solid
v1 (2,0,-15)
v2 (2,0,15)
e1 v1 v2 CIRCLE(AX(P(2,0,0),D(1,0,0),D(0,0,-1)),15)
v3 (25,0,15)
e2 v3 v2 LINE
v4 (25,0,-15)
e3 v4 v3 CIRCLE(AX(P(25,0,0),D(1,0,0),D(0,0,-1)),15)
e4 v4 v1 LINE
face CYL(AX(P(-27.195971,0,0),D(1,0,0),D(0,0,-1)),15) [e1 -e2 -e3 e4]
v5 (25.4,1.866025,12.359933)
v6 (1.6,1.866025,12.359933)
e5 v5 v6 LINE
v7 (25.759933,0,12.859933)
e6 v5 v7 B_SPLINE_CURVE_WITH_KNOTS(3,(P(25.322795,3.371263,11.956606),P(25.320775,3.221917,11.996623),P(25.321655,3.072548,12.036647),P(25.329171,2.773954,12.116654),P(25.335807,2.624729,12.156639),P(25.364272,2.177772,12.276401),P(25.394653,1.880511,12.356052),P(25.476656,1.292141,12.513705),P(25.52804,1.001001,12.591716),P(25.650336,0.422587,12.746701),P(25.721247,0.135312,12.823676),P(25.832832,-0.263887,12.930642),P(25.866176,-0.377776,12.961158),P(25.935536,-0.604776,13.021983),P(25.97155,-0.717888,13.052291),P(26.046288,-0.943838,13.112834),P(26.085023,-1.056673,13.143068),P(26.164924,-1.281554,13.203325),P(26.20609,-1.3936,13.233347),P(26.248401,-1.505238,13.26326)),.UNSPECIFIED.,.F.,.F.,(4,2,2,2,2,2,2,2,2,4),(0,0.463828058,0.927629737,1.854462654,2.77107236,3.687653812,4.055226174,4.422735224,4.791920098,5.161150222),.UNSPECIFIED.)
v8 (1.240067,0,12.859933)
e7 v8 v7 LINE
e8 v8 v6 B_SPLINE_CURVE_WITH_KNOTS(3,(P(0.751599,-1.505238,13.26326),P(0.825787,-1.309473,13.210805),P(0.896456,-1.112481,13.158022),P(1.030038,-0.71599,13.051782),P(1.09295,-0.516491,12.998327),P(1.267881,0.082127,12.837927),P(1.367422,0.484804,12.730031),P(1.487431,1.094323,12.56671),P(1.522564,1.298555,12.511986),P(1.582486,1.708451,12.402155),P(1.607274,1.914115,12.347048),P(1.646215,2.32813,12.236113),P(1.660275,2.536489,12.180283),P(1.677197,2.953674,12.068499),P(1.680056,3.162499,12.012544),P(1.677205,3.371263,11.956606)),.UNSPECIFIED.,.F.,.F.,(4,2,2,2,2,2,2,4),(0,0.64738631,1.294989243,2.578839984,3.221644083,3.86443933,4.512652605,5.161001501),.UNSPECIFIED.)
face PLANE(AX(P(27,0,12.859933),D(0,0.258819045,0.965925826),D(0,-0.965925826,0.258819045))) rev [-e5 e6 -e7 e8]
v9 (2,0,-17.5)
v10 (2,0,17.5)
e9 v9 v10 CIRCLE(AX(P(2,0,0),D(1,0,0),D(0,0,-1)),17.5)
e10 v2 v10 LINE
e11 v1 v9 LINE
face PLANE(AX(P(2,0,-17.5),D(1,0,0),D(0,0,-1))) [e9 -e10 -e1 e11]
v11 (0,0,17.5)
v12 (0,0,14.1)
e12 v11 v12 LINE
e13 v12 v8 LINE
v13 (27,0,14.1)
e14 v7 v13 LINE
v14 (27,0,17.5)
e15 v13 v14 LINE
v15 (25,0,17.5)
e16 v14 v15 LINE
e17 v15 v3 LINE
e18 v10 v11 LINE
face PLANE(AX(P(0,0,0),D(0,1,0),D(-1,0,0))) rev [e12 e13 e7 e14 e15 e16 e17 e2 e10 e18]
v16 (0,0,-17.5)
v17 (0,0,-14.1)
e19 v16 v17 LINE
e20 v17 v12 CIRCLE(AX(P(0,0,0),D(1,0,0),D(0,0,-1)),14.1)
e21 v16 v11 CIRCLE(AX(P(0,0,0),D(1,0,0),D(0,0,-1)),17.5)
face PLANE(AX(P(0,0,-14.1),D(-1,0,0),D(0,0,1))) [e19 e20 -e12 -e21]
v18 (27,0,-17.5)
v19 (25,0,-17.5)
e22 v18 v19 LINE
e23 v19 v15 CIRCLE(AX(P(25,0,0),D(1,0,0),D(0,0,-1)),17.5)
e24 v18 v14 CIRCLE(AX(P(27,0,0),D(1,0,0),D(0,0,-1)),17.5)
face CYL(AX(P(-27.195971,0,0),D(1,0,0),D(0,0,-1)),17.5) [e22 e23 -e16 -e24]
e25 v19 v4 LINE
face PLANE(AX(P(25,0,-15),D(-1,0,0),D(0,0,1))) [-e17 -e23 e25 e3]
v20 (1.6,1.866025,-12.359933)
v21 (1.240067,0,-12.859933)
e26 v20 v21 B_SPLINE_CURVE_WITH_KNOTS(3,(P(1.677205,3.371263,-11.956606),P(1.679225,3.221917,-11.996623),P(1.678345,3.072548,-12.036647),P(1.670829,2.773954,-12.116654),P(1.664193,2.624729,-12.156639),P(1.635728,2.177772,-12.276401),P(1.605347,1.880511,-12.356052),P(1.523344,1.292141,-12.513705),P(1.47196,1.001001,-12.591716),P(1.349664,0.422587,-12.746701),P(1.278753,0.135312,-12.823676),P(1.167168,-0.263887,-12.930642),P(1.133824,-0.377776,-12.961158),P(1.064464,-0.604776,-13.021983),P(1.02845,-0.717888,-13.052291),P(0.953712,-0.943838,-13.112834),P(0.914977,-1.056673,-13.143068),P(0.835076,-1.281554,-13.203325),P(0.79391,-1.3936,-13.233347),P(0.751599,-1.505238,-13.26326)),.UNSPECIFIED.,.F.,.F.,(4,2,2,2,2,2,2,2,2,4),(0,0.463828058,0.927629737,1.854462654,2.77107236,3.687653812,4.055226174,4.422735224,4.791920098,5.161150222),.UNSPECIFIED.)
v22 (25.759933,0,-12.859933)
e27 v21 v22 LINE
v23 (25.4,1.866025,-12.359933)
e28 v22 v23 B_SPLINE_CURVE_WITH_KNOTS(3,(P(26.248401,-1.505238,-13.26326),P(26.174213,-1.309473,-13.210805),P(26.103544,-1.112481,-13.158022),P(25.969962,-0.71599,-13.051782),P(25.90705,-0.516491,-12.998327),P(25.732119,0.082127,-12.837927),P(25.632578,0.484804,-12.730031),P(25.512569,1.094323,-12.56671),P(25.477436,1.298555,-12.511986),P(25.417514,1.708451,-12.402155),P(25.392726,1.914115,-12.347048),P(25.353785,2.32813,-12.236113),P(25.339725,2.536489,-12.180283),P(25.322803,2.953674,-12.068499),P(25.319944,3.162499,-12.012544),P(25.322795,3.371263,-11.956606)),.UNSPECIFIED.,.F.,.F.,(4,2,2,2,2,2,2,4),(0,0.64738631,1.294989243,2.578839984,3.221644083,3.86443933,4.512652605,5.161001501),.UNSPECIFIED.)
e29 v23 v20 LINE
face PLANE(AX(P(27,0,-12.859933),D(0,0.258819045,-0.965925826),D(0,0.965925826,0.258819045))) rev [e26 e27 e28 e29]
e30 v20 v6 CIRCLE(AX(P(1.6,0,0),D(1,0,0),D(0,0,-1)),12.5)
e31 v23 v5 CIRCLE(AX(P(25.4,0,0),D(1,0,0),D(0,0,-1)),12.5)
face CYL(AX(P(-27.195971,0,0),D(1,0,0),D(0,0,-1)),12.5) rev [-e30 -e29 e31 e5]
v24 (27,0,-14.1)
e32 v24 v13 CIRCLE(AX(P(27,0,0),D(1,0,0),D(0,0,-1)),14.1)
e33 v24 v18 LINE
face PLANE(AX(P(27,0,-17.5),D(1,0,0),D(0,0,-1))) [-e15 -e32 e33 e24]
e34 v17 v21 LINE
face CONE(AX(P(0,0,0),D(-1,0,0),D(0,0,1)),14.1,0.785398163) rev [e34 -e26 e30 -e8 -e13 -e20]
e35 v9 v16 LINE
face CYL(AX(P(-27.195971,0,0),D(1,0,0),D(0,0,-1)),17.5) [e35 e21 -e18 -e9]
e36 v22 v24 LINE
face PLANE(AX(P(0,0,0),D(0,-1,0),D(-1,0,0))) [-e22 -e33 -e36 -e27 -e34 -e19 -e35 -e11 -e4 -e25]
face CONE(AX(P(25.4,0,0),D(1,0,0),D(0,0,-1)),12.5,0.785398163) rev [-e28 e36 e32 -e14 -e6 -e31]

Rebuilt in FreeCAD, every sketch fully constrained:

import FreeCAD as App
import Part
import Sketcher
Q = App.Units.Quantity

doc = App.newDocument("Part")
body = doc.addObject("PartDesign::Body", "Body")

sketch1 = body.newObject("Sketcher::SketchObject", "Sketch")
sketch1.AttachmentSupport = (doc.getObject("XY_Plane"), [""])
sketch1.MapMode = "FlatFace"
sketch1.addGeometry([
    Part.LineSegment(App.Vector(0, 17.5, 0), App.Vector(0, 14.1, 0)),
    Part.LineSegment(App.Vector(0, 14.1, 0), App.Vector(1.6, 12.5, 0)),
    Part.LineSegment(App.Vector(1.6, 12.5, 0), App.Vector(25.4, 12.5, 0)),
    Part.LineSegment(App.Vector(25.4, 12.5, 0), App.Vector(27, 14.1, 0)),
    Part.LineSegment(App.Vector(27, 14.1, 0), App.Vector(27, 17.5, 0)),
    Part.LineSegment(App.Vector(27, 17.5, 0), App.Vector(25, 17.5, 0)),
    Part.LineSegment(App.Vector(25, 17.5, 0), App.Vector(25, 15, 0)),
    Part.LineSegment(App.Vector(25, 15, 0), App.Vector(2, 15, 0)),
    Part.LineSegment(App.Vector(2, 15, 0), App.Vector(2, 17.5, 0)),
    Part.LineSegment(App.Vector(2, 17.5, 0), App.Vector(0, 17.5, 0)),
], False)
sketch1.addConstraint([
    Sketcher.Constraint("Coincident", 0, 2, 1, 1),
    Sketcher.Constraint("Coincident", 1, 2, 2, 1),
    Sketcher.Constraint("Coincident", 2, 2, 3, 1),
    Sketcher.Constraint("Coincident", 3, 2, 4, 1),
    Sketcher.Constraint("Coincident", 4, 2, 5, 1),
    Sketcher.Constraint("Coincident", 5, 2, 6, 1),
    Sketcher.Constraint("Coincident", 6, 2, 7, 1),
    Sketcher.Constraint("Coincident", 7, 2, 8, 1),
    Sketcher.Constraint("Coincident", 8, 2, 9, 1),
    Sketcher.Constraint("Coincident", 9, 2, 0, 1),
    Sketcher.Constraint("Vertical", 0),
    Sketcher.Constraint("Horizontal", 2),
    Sketcher.Constraint("Vertical", 4),
    Sketcher.Constraint("Horizontal", 5),
    Sketcher.Constraint("Vertical", 6),
    Sketcher.Constraint("Horizontal", 7),
    Sketcher.Constraint("Vertical", 8),
    Sketcher.Constraint("Horizontal", 9),
    Sketcher.Constraint("PointOnObject", 0, 2, -2),
    Sketcher.Constraint("Perpendicular", 1, 3),
    Sketcher.Constraint("Horizontal", 0, 2, 3, 2),
    Sketcher.Constraint("Horizontal", 5, 2, 8, 2),
    Sketcher.Constraint("Equal", 5, 9),
    Sketcher.Constraint("Equal", 1, 3),
    Sketcher.Constraint("DistanceX", 5, 2, 5, 1, 2.0),
    Sketcher.Constraint("DistanceX", 7, 2, 7, 1, 23.0),
    Sketcher.Constraint("DistanceX", 2, 1, 2, 2, 23.8),
    Sketcher.Constraint("DistanceY", 0, 2, 0, 1, 3.4),
    Sketcher.Constraint("DistanceY", 6, 2, 6, 1, 2.5),
    Sketcher.Constraint("DistanceY", -1, 1, 6, 2, 15.0),
])
revolution = body.newObject("PartDesign::Revolution", "Revolution")
revolution.Profile = sketch1
revolution.ReferenceAxis = (sketch1, ["H_Axis"])
revolution.Angle = 90

sketch2 = body.newObject("Sketcher::SketchObject", "Sketch001")
sketch2.AttachmentSupport = (doc.getObject("XY_Plane"), [""])
sketch2.MapMode = "FlatFace"
sketch2.addGeometry([
    Part.LineSegment(App.Vector(0, 17.5, 0), App.Vector(0, 14.1, 0)),
    Part.LineSegment(App.Vector(0, 14.1, 0), App.Vector(1.6, 12.5, 0)),
    Part.LineSegment(App.Vector(1.6, 12.5, 0), App.Vector(25.4, 12.5, 0)),
    Part.LineSegment(App.Vector(25.4, 12.5, 0), App.Vector(27, 14.1, 0)),
    Part.LineSegment(App.Vector(27, 14.1, 0), App.Vector(27, 17.5, 0)),
    Part.LineSegment(App.Vector(27, 17.5, 0), App.Vector(25, 17.5, 0)),
    Part.LineSegment(App.Vector(25, 17.5, 0), App.Vector(25, 15, 0)),
    Part.LineSegment(App.Vector(25, 15, 0), App.Vector(2, 15, 0)),
    Part.LineSegment(App.Vector(2, 15, 0), App.Vector(2, 17.5, 0)),
    Part.LineSegment(App.Vector(2, 17.5, 0), App.Vector(0, 17.5, 0)),
], False)
sketch2.addConstraint([
    Sketcher.Constraint("Coincident", 0, 2, 1, 1),
    Sketcher.Constraint("Coincident", 1, 2, 2, 1),
    Sketcher.Constraint("Coincident", 2, 2, 3, 1),
    Sketcher.Constraint("Coincident", 3, 2, 4, 1),
    Sketcher.Constraint("Coincident", 4, 2, 5, 1),
    Sketcher.Constraint("Coincident", 5, 2, 6, 1),
    Sketcher.Constraint("Coincident", 6, 2, 7, 1),
    Sketcher.Constraint("Coincident", 7, 2, 8, 1),
    Sketcher.Constraint("Coincident", 8, 2, 9, 1),
    Sketcher.Constraint("Coincident", 9, 2, 0, 1),
    Sketcher.Constraint("Vertical", 0),
    Sketcher.Constraint("Horizontal", 2),
    Sketcher.Constraint("Vertical", 4),
    Sketcher.Constraint("Horizontal", 5),
    Sketcher.Constraint("Vertical", 6),
    Sketcher.Constraint("Horizontal", 7),
    Sketcher.Constraint("Vertical", 8),
    Sketcher.Constraint("Horizontal", 9),
    Sketcher.Constraint("PointOnObject", 0, 2, -2),
    Sketcher.Constraint("Perpendicular", 1, 3),
    Sketcher.Constraint("Horizontal", 0, 2, 3, 2),
    Sketcher.Constraint("Horizontal", 5, 2, 8, 2),
    Sketcher.Constraint("Equal", 5, 9),
    Sketcher.Constraint("Equal", 1, 3),
    Sketcher.Constraint("DistanceX", 5, 2, 5, 1, 2.0),
    Sketcher.Constraint("DistanceX", 7, 2, 7, 1, 23.0),
    Sketcher.Constraint("DistanceX", 2, 1, 2, 2, 23.8),
    Sketcher.Constraint("DistanceY", 0, 2, 0, 1, 3.4),
    Sketcher.Constraint("DistanceY", 6, 2, 6, 1, 2.5),
    Sketcher.Constraint("DistanceY", -1, 1, 6, 2, 15.0),
])
revolution2 = body.newObject("PartDesign::Revolution", "Revolution001")
revolution2.Profile = sketch2
revolution2.ReferenceAxis = (sketch2, ["H_Axis"])
revolution2.Angle = 90
revolution2.Reversed = True

sketch3 = body.newObject("Sketcher::SketchObject", "Sketch002")
sketch3.AttachmentSupport = (doc.getObject("YZ_Plane"), [""])
sketch3.MapMode = "FlatFace"
sketch3.addGeometry([
    Part.LineSegment(App.Vector(0, 12.9, 0), App.Vector(1.9, 12.4, 0)),
    Part.LineSegment(App.Vector(1.9, 12.4, 0), App.Vector(0, 12.4, 0)),
    Part.LineSegment(App.Vector(0, 12.4, 0), App.Vector(0, 12.9, 0)),
    Part.LineSegment(App.Vector(1.9, -12.4, 0), App.Vector(0, -12.9, 0)),
    Part.LineSegment(App.Vector(0, -12.9, 0), App.Vector(0, -12.4, 0)),
    Part.LineSegment(App.Vector(0, -12.4, 0), App.Vector(1.9, -12.4, 0)),
], False)
sketch3.addConstraint([
    Sketcher.Constraint("Coincident", 0, 2, 1, 1),
    Sketcher.Constraint("Coincident", 1, 2, 2, 1),
    Sketcher.Constraint("Coincident", 2, 2, 0, 1),
    Sketcher.Constraint("Coincident", 3, 2, 4, 1),
    Sketcher.Constraint("Coincident", 4, 2, 5, 1),
    Sketcher.Constraint("Coincident", 5, 2, 3, 1),
    Sketcher.Constraint("Horizontal", 1),
    Sketcher.Constraint("Vertical", 2),
    Sketcher.Constraint("Vertical", 4),
    Sketcher.Constraint("Horizontal", 5),
    Sketcher.Constraint("Symmetric", 2, 2, 3, 2, -1, 1),
    Sketcher.Constraint("Symmetric", 1, 2, 4, 2, -1),
    Sketcher.Constraint("Vertical", 0, 2, 5, 2),
    Sketcher.Constraint("Angle", 0, Q("-15 deg")),
    Sketcher.Constraint("DistanceY", 2, 1, 2, 2, 0.5),
    Sketcher.Constraint("DistanceY", -1, 1, 0, 2, 12.359933),
])
pocket1 = body.newObject("PartDesign::Pocket", "Pocket")
pocket1.Profile = sketch3
pocket1.Type = "ThroughAll"
pocket1.Reversed = True

doc.recompute()
